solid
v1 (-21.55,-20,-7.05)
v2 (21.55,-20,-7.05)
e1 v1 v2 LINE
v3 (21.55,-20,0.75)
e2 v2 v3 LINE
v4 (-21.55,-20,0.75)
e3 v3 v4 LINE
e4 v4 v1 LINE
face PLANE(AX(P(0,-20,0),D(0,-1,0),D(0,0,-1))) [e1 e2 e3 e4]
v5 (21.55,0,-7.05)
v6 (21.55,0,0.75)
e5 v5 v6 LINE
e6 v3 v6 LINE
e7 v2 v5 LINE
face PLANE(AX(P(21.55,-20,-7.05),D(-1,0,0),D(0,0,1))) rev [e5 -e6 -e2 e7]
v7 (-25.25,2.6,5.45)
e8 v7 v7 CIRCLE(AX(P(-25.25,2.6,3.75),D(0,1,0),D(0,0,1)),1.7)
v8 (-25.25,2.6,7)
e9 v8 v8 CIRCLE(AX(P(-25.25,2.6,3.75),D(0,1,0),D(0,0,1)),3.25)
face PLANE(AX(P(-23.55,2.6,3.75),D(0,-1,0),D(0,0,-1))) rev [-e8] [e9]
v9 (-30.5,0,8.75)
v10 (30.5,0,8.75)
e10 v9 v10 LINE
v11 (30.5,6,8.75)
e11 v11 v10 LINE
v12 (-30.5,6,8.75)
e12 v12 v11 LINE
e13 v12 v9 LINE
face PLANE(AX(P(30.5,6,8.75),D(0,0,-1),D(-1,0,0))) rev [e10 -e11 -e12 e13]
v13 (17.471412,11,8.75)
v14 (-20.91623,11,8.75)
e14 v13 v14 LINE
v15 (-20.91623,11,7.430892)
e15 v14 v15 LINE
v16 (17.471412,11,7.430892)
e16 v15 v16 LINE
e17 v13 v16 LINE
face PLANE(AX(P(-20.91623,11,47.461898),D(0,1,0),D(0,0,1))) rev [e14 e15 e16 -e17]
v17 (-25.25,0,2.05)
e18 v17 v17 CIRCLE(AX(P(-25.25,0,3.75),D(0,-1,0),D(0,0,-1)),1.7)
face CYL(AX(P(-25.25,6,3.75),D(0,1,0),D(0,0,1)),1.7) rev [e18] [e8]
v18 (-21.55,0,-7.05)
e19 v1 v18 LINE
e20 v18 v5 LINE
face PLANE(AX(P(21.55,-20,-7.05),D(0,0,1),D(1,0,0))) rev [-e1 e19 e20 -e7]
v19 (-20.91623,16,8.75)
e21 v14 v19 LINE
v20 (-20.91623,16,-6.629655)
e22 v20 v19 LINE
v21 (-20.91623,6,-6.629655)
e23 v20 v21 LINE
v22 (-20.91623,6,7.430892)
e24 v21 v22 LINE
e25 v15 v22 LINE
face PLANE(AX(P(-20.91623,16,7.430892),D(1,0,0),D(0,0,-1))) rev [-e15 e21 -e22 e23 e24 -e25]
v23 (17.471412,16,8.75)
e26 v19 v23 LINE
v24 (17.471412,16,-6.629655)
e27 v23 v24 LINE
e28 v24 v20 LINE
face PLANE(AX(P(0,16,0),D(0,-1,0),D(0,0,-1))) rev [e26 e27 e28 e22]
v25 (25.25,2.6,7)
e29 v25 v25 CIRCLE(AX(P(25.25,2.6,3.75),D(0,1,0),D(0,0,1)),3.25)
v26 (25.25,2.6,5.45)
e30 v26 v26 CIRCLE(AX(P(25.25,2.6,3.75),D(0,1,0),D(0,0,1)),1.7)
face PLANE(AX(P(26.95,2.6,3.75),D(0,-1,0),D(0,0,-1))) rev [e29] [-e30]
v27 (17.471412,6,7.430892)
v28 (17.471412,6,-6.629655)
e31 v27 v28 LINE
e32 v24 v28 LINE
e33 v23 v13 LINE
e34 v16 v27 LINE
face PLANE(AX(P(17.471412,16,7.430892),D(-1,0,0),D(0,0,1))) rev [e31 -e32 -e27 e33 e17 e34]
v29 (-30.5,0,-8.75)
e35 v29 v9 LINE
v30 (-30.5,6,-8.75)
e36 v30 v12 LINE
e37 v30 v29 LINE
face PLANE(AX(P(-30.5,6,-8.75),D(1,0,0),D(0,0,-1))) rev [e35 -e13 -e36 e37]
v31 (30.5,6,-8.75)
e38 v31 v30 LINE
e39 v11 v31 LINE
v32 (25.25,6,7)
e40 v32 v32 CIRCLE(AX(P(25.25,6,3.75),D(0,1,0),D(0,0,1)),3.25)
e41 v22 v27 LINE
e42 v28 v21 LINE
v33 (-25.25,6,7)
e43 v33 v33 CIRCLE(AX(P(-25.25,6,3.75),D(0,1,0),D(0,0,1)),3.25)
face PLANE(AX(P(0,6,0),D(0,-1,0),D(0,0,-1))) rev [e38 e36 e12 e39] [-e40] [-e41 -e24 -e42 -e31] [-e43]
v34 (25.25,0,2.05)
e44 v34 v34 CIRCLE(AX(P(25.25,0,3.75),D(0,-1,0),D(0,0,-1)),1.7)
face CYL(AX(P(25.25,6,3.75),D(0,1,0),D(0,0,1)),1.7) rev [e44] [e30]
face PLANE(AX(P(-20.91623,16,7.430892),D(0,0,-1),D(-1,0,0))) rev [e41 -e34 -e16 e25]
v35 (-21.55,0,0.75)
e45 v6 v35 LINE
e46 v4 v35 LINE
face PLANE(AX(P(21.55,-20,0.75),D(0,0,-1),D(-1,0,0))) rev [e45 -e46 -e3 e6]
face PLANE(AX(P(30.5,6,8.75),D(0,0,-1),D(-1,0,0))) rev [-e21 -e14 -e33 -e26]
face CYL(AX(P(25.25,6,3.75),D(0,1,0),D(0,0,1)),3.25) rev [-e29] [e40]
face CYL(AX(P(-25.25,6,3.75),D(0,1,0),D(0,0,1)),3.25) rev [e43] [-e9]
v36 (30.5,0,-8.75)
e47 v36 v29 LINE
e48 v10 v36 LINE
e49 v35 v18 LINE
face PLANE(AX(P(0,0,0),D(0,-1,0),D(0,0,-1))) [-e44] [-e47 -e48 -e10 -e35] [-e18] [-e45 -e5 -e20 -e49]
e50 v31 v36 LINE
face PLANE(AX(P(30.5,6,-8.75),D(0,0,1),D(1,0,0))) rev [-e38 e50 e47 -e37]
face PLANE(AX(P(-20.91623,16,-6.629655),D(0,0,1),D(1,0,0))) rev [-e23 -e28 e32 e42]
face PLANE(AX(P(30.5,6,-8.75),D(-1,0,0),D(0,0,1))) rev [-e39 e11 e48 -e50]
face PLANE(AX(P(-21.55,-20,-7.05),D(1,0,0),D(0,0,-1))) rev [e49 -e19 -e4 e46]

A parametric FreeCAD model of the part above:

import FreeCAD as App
import Part
import Sketcher
from FreeCAD import Vector

doc = App.newDocument("Part")
body = doc.addObject("PartDesign::Body", "Body")

# Sketch on XZ plane
sketch1 = body.newObject("Sketcher::SketchObject", "Sketch")
sketch1.AttachmentSupport = (doc.getObject("XZ_Plane"), [""])
sketch1.MapMode = "FlatFace"
sketch1.addGeometry(Part.LineSegment(Vector(-30, -9, 0), Vector(-30, 9, 0)), False)
sketch1.addGeometry(Part.LineSegment(Vector(-30, 9, 0), Vector(30, 9, 0)), False)
sketch1.addGeometry(Part.LineSegment(Vector(30, 9, 0), Vector(30, -9, 0)), False)
sketch1.addGeometry(Part.LineSegment(Vector(30, -9, 0), Vector(-30, -9, 0)), False)
sketch1.addConstraint(Sketcher.Constraint("Coincident", 0, 2, 1, 1))
sketch1.addConstraint(Sketcher.Constraint("Coincident", 1, 2, 2, 1))
sketch1.addConstraint(Sketcher.Constraint("Coincident", 2, 2, 3, 1))
sketch1.addConstraint(Sketcher.Constraint("Coincident", 3, 2, 0, 1))
sketch1.addConstraint(Sketcher.Constraint("Vertical", 0))
sketch1.addConstraint(Sketcher.Constraint("Horizontal", 1))
sketch1.addConstraint(Sketcher.Constraint("Vertical", 2))
sketch1.addConstraint(Sketcher.Constraint("Horizontal", 3))
sketch1.addConstraint(Sketcher.Constraint("Symmetric", 0, 2, 2, 2, -1, 1))
sketch1.addConstraint(Sketcher.Constraint("DistanceX", 1, 1, 1, 2, 61.0))
sketch1.addConstraint(Sketcher.Constraint("DistanceY", 0, 1, 0, 2, 17.5))
pad1 = body.newObject("PartDesign::Pad", "Pad")
pad1.Profile = sketch1
pad1.Length = 6
pad1.Reversed = True

# Sketch on XZ plane
sketch2 = body.newObject("Sketcher::SketchObject", "Sketch001")
sketch2.AttachmentSupport = (doc.getObject("XZ_Plane"), [""])
sketch2.MapMode = "FlatFace"
sketch2.addGeometry(Part.LineSegment(Vector(-22, 1, 0), Vector(-22, -7, 0)), False)
sketch2.addGeometry(Part.LineSegment(Vector(-22, -7, 0), Vector(22, -7, 0)), False)
sketch2.addGeometry(Part.LineSegment(Vector(22, -7, 0), Vector(22, 1, 0)), False)
sketch2.addGeometry(Part.LineSegment(Vector(22, 1, 0), Vector(-22, 1, 0)), False)
sketch2.addConstraint(Sketcher.Constraint("Coincident", 0, 2, 1, 1))
sketch2.addConstraint(Sketcher.Constraint("Coincident", 1, 2, 2, 1))
sketch2.addConstraint(Sketcher.Constraint("Coincident", 2, 2, 3, 1))
sketch2.addConstraint(Sketcher.Constraint("Coincident", 3, 2, 0, 1))
sketch2.addConstraint(Sketcher.Constraint("Vertical", 0))
sketch2.addConstraint(Sketcher.Constraint("Horizontal", 1))
sketch2.addConstraint(Sketcher.Constraint("Vertical", 2))
sketch2.addConstraint(Sketcher.Constraint("Horizontal", 3))
sketch2.addConstraint(Sketcher.Constraint("DistanceX", 1, 1, 1, 2, 43.1))
sketch2.addConstraint(Sketcher.Constraint("DistanceY", 0, 2, 0, 1, 7.8))
sketch2.addConstraint(Sketcher.Constraint("DistanceX", 0, 2, -1, 1, 21.55))
sketch2.addConstraint(Sketcher.Constraint("DistanceY", 0, 2, -1, 1, 7.05))
pad2 = body.newObject("PartDesign::Pad", "Pad001")
pad2.Profile = sketch2
pad2.Length = 20

# Sketch on XZ plane
sketch3 = body.newObject("Sketcher::SketchObject", "Sketch002")
sketch3.AttachmentSupport = (doc.getObject("XZ_Plane"), [""])
sketch3.MapMode = "FlatFace"
sketch3.AttachmentOffset = App.Placement(Vector(0, 0, -6), App.Rotation())
sketch3.addGeometry(Part.Circle(Vector(-25.2, 3.8, 0), Vector(0, 0, 1), 1.7), False)
sketch3.addGeometry(Part.Circle(Vector(25.2, 3.8, 0), Vector(0, 0, 1), 1.7), False)
sketch3.addConstraint(Sketcher.Constraint("Equal", 0, 1))
sketch3.addConstraint(Sketcher.Constraint("Symmetric", 0, 3, 1, 3, -2))
sketch3.addConstraint(Sketcher.Constraint("Diameter", 0, 3.4))
sketch3.addConstraint(Sketcher.Constraint("DistanceX", 0, 3, 1, 3, 50.5))
sketch3.addConstraint(Sketcher.Constraint("DistanceY", -1, 1, 0, 3, 3.75))
doc.recompute()
hole = body.newObject("PartDesign::Hole", "Hole")
hole.Profile = sketch3
hole.ThreadType = "None"
hole.Diameter = 3.4
hole.DepthType = "Dimension"
hole.Depth = 10
hole.DrillPoint = "Angled"
hole.DrillPointAngle = 118
hole.HoleCutType = "Counterbore"
hole.HoleCutDiameter = 6.5
hole.HoleCutDepth = 3.4
hole.Reversed = True

# Sketch on XZ plane
sketch4 = body.newObject("Sketcher::SketchObject", "Sketch003")
sketch4.AttachmentSupport = (doc.getObject("XZ_Plane"), [""])
sketch4.MapMode = "FlatFace"
sketch4.AttachmentOffset = App.Placement(Vector(0, 0, -6), App.Rotation())
sketch4.addGeometry(Part.LineSegment(Vector(-21, -7, 0), Vector(-21, 7, 0)), False)
sketch4.addGeometry(Part.LineSegment(Vector(-21, 7, 0), Vector(17, 7, 0)), False)
sketch4.addGeometry(Part.LineSegment(Vector(17, 7, 0), Vector(17, -7, 0)), False)
sketch4.addGeometry(Part.LineSegment(Vector(17, -7, 0), Vector(-21, -7, 0)), False)
sketch4.addConstraint(Sketcher.Constraint("Coincident", 0, 2, 1, 1))
sketch4.addConstraint(Sketcher.Constraint("Coincident", 1, 2, 2, 1))
sketch4.addConstraint(Sketcher.Constraint("Coincident", 2, 2, 3, 1))
sketch4.addConstraint(Sketcher.Constraint("Coincident", 3, 2, 0, 1))
sketch4.addConstraint(Sketcher.Constraint("Vertical", 0))
sketch4.addConstraint(Sketcher.Constraint("Horizontal", 1))
sketch4.addConstraint(Sketcher.Constraint("Vertical", 2))
sketch4.addConstraint(Sketcher.Constraint("Horizontal", 3))
sketch4.addConstraint(Sketcher.Constraint("DistanceX", 1, 1, 1, 2, 38.387642))
sketch4.addConstraint(Sketcher.Constraint("DistanceY", 0, 1, 0, 2, 14.060547))
sketch4.addConstraint(Sketcher.Constraint("DistanceX", 0, 2, -1, 1, 20.91623))
sketch4.addConstraint(Sketcher.Constraint("DistanceY", -1, 1, 0, 2, 7.430892))
pad3 = body.newObject("PartDesign::Pad", "Pad002")
pad3.Profile = sketch4
pad3.Length = 10
pad3.Reversed = True

# Sketch on XY plane
sketch5 = body.newObject("Sketcher::SketchObject", "Sketch004")
sketch5.AttachmentSupport = (doc.getObject("XY_Plane"), [""])
sketch5.MapMode = "FlatFace"
sketch5.AttachmentOffset = App.Placement(Vector(0, 0, 7.430892), App.Rotation())
sketch5.addGeometry(Part.LineSegment(Vector(-21, 16, 0), Vector(-21, 11, 0)), False)
sketch5.addGeometry(Part.LineSegment(Vector(-21, 11, 0), Vector(17, 11, 0)), False)
sketch5.addGeometry(Part.LineSegment(Vector(17, 11, 0), Vector(17, 16, 0)), False)
sketch5.addGeometry(Part.LineSegment(Vector(17, 16, 0), Vector(-21, 16, 0)), False)
sketch5.addConstraint(Sketcher.Constraint("Coincident", 0, 2, 1, 1))
sketch5.addConstraint(Sketcher.Constraint("Coincident", 1, 2, 2, 1))
sketch5.addConstraint(Sketcher.Constraint("Coincident", 2, 2, 3, 1))
sketch5.addConstraint(Sketcher.Constraint("Coincident", 3, 2, 0, 1))
sketch5.addConstraint(Sketcher.Constraint("Vertical", 0))
sketch5.addConstraint(Sketcher.Constraint("Horizontal", 1))
sketch5.addConstraint(Sketcher.Constraint("Vertical", 2))
sketch5.addConstraint(Sketcher.Constraint("Horizontal", 3))
sketch5.addConstraint(Sketcher.Constraint("DistanceY", 0, 2, 0, 1, 5.0))
sketch5.addConstraint(Sketcher.Constraint("DistanceY", -1, 1, 0, 2, 11.0))
sketch5.addConstraint(Sketcher.Constraint("DistanceX", 1, 1, 1, 2, 38.387642))
sketch5.addConstraint(Sketcher.Constraint("DistanceX", 0, 2, -1, 1, 20.91623))
pad4 = body.newObject("PartDesign::Pad", "Pad003")
pad4.Profile = sketch5
pad4.Length = 1.319108

doc.recompute()
